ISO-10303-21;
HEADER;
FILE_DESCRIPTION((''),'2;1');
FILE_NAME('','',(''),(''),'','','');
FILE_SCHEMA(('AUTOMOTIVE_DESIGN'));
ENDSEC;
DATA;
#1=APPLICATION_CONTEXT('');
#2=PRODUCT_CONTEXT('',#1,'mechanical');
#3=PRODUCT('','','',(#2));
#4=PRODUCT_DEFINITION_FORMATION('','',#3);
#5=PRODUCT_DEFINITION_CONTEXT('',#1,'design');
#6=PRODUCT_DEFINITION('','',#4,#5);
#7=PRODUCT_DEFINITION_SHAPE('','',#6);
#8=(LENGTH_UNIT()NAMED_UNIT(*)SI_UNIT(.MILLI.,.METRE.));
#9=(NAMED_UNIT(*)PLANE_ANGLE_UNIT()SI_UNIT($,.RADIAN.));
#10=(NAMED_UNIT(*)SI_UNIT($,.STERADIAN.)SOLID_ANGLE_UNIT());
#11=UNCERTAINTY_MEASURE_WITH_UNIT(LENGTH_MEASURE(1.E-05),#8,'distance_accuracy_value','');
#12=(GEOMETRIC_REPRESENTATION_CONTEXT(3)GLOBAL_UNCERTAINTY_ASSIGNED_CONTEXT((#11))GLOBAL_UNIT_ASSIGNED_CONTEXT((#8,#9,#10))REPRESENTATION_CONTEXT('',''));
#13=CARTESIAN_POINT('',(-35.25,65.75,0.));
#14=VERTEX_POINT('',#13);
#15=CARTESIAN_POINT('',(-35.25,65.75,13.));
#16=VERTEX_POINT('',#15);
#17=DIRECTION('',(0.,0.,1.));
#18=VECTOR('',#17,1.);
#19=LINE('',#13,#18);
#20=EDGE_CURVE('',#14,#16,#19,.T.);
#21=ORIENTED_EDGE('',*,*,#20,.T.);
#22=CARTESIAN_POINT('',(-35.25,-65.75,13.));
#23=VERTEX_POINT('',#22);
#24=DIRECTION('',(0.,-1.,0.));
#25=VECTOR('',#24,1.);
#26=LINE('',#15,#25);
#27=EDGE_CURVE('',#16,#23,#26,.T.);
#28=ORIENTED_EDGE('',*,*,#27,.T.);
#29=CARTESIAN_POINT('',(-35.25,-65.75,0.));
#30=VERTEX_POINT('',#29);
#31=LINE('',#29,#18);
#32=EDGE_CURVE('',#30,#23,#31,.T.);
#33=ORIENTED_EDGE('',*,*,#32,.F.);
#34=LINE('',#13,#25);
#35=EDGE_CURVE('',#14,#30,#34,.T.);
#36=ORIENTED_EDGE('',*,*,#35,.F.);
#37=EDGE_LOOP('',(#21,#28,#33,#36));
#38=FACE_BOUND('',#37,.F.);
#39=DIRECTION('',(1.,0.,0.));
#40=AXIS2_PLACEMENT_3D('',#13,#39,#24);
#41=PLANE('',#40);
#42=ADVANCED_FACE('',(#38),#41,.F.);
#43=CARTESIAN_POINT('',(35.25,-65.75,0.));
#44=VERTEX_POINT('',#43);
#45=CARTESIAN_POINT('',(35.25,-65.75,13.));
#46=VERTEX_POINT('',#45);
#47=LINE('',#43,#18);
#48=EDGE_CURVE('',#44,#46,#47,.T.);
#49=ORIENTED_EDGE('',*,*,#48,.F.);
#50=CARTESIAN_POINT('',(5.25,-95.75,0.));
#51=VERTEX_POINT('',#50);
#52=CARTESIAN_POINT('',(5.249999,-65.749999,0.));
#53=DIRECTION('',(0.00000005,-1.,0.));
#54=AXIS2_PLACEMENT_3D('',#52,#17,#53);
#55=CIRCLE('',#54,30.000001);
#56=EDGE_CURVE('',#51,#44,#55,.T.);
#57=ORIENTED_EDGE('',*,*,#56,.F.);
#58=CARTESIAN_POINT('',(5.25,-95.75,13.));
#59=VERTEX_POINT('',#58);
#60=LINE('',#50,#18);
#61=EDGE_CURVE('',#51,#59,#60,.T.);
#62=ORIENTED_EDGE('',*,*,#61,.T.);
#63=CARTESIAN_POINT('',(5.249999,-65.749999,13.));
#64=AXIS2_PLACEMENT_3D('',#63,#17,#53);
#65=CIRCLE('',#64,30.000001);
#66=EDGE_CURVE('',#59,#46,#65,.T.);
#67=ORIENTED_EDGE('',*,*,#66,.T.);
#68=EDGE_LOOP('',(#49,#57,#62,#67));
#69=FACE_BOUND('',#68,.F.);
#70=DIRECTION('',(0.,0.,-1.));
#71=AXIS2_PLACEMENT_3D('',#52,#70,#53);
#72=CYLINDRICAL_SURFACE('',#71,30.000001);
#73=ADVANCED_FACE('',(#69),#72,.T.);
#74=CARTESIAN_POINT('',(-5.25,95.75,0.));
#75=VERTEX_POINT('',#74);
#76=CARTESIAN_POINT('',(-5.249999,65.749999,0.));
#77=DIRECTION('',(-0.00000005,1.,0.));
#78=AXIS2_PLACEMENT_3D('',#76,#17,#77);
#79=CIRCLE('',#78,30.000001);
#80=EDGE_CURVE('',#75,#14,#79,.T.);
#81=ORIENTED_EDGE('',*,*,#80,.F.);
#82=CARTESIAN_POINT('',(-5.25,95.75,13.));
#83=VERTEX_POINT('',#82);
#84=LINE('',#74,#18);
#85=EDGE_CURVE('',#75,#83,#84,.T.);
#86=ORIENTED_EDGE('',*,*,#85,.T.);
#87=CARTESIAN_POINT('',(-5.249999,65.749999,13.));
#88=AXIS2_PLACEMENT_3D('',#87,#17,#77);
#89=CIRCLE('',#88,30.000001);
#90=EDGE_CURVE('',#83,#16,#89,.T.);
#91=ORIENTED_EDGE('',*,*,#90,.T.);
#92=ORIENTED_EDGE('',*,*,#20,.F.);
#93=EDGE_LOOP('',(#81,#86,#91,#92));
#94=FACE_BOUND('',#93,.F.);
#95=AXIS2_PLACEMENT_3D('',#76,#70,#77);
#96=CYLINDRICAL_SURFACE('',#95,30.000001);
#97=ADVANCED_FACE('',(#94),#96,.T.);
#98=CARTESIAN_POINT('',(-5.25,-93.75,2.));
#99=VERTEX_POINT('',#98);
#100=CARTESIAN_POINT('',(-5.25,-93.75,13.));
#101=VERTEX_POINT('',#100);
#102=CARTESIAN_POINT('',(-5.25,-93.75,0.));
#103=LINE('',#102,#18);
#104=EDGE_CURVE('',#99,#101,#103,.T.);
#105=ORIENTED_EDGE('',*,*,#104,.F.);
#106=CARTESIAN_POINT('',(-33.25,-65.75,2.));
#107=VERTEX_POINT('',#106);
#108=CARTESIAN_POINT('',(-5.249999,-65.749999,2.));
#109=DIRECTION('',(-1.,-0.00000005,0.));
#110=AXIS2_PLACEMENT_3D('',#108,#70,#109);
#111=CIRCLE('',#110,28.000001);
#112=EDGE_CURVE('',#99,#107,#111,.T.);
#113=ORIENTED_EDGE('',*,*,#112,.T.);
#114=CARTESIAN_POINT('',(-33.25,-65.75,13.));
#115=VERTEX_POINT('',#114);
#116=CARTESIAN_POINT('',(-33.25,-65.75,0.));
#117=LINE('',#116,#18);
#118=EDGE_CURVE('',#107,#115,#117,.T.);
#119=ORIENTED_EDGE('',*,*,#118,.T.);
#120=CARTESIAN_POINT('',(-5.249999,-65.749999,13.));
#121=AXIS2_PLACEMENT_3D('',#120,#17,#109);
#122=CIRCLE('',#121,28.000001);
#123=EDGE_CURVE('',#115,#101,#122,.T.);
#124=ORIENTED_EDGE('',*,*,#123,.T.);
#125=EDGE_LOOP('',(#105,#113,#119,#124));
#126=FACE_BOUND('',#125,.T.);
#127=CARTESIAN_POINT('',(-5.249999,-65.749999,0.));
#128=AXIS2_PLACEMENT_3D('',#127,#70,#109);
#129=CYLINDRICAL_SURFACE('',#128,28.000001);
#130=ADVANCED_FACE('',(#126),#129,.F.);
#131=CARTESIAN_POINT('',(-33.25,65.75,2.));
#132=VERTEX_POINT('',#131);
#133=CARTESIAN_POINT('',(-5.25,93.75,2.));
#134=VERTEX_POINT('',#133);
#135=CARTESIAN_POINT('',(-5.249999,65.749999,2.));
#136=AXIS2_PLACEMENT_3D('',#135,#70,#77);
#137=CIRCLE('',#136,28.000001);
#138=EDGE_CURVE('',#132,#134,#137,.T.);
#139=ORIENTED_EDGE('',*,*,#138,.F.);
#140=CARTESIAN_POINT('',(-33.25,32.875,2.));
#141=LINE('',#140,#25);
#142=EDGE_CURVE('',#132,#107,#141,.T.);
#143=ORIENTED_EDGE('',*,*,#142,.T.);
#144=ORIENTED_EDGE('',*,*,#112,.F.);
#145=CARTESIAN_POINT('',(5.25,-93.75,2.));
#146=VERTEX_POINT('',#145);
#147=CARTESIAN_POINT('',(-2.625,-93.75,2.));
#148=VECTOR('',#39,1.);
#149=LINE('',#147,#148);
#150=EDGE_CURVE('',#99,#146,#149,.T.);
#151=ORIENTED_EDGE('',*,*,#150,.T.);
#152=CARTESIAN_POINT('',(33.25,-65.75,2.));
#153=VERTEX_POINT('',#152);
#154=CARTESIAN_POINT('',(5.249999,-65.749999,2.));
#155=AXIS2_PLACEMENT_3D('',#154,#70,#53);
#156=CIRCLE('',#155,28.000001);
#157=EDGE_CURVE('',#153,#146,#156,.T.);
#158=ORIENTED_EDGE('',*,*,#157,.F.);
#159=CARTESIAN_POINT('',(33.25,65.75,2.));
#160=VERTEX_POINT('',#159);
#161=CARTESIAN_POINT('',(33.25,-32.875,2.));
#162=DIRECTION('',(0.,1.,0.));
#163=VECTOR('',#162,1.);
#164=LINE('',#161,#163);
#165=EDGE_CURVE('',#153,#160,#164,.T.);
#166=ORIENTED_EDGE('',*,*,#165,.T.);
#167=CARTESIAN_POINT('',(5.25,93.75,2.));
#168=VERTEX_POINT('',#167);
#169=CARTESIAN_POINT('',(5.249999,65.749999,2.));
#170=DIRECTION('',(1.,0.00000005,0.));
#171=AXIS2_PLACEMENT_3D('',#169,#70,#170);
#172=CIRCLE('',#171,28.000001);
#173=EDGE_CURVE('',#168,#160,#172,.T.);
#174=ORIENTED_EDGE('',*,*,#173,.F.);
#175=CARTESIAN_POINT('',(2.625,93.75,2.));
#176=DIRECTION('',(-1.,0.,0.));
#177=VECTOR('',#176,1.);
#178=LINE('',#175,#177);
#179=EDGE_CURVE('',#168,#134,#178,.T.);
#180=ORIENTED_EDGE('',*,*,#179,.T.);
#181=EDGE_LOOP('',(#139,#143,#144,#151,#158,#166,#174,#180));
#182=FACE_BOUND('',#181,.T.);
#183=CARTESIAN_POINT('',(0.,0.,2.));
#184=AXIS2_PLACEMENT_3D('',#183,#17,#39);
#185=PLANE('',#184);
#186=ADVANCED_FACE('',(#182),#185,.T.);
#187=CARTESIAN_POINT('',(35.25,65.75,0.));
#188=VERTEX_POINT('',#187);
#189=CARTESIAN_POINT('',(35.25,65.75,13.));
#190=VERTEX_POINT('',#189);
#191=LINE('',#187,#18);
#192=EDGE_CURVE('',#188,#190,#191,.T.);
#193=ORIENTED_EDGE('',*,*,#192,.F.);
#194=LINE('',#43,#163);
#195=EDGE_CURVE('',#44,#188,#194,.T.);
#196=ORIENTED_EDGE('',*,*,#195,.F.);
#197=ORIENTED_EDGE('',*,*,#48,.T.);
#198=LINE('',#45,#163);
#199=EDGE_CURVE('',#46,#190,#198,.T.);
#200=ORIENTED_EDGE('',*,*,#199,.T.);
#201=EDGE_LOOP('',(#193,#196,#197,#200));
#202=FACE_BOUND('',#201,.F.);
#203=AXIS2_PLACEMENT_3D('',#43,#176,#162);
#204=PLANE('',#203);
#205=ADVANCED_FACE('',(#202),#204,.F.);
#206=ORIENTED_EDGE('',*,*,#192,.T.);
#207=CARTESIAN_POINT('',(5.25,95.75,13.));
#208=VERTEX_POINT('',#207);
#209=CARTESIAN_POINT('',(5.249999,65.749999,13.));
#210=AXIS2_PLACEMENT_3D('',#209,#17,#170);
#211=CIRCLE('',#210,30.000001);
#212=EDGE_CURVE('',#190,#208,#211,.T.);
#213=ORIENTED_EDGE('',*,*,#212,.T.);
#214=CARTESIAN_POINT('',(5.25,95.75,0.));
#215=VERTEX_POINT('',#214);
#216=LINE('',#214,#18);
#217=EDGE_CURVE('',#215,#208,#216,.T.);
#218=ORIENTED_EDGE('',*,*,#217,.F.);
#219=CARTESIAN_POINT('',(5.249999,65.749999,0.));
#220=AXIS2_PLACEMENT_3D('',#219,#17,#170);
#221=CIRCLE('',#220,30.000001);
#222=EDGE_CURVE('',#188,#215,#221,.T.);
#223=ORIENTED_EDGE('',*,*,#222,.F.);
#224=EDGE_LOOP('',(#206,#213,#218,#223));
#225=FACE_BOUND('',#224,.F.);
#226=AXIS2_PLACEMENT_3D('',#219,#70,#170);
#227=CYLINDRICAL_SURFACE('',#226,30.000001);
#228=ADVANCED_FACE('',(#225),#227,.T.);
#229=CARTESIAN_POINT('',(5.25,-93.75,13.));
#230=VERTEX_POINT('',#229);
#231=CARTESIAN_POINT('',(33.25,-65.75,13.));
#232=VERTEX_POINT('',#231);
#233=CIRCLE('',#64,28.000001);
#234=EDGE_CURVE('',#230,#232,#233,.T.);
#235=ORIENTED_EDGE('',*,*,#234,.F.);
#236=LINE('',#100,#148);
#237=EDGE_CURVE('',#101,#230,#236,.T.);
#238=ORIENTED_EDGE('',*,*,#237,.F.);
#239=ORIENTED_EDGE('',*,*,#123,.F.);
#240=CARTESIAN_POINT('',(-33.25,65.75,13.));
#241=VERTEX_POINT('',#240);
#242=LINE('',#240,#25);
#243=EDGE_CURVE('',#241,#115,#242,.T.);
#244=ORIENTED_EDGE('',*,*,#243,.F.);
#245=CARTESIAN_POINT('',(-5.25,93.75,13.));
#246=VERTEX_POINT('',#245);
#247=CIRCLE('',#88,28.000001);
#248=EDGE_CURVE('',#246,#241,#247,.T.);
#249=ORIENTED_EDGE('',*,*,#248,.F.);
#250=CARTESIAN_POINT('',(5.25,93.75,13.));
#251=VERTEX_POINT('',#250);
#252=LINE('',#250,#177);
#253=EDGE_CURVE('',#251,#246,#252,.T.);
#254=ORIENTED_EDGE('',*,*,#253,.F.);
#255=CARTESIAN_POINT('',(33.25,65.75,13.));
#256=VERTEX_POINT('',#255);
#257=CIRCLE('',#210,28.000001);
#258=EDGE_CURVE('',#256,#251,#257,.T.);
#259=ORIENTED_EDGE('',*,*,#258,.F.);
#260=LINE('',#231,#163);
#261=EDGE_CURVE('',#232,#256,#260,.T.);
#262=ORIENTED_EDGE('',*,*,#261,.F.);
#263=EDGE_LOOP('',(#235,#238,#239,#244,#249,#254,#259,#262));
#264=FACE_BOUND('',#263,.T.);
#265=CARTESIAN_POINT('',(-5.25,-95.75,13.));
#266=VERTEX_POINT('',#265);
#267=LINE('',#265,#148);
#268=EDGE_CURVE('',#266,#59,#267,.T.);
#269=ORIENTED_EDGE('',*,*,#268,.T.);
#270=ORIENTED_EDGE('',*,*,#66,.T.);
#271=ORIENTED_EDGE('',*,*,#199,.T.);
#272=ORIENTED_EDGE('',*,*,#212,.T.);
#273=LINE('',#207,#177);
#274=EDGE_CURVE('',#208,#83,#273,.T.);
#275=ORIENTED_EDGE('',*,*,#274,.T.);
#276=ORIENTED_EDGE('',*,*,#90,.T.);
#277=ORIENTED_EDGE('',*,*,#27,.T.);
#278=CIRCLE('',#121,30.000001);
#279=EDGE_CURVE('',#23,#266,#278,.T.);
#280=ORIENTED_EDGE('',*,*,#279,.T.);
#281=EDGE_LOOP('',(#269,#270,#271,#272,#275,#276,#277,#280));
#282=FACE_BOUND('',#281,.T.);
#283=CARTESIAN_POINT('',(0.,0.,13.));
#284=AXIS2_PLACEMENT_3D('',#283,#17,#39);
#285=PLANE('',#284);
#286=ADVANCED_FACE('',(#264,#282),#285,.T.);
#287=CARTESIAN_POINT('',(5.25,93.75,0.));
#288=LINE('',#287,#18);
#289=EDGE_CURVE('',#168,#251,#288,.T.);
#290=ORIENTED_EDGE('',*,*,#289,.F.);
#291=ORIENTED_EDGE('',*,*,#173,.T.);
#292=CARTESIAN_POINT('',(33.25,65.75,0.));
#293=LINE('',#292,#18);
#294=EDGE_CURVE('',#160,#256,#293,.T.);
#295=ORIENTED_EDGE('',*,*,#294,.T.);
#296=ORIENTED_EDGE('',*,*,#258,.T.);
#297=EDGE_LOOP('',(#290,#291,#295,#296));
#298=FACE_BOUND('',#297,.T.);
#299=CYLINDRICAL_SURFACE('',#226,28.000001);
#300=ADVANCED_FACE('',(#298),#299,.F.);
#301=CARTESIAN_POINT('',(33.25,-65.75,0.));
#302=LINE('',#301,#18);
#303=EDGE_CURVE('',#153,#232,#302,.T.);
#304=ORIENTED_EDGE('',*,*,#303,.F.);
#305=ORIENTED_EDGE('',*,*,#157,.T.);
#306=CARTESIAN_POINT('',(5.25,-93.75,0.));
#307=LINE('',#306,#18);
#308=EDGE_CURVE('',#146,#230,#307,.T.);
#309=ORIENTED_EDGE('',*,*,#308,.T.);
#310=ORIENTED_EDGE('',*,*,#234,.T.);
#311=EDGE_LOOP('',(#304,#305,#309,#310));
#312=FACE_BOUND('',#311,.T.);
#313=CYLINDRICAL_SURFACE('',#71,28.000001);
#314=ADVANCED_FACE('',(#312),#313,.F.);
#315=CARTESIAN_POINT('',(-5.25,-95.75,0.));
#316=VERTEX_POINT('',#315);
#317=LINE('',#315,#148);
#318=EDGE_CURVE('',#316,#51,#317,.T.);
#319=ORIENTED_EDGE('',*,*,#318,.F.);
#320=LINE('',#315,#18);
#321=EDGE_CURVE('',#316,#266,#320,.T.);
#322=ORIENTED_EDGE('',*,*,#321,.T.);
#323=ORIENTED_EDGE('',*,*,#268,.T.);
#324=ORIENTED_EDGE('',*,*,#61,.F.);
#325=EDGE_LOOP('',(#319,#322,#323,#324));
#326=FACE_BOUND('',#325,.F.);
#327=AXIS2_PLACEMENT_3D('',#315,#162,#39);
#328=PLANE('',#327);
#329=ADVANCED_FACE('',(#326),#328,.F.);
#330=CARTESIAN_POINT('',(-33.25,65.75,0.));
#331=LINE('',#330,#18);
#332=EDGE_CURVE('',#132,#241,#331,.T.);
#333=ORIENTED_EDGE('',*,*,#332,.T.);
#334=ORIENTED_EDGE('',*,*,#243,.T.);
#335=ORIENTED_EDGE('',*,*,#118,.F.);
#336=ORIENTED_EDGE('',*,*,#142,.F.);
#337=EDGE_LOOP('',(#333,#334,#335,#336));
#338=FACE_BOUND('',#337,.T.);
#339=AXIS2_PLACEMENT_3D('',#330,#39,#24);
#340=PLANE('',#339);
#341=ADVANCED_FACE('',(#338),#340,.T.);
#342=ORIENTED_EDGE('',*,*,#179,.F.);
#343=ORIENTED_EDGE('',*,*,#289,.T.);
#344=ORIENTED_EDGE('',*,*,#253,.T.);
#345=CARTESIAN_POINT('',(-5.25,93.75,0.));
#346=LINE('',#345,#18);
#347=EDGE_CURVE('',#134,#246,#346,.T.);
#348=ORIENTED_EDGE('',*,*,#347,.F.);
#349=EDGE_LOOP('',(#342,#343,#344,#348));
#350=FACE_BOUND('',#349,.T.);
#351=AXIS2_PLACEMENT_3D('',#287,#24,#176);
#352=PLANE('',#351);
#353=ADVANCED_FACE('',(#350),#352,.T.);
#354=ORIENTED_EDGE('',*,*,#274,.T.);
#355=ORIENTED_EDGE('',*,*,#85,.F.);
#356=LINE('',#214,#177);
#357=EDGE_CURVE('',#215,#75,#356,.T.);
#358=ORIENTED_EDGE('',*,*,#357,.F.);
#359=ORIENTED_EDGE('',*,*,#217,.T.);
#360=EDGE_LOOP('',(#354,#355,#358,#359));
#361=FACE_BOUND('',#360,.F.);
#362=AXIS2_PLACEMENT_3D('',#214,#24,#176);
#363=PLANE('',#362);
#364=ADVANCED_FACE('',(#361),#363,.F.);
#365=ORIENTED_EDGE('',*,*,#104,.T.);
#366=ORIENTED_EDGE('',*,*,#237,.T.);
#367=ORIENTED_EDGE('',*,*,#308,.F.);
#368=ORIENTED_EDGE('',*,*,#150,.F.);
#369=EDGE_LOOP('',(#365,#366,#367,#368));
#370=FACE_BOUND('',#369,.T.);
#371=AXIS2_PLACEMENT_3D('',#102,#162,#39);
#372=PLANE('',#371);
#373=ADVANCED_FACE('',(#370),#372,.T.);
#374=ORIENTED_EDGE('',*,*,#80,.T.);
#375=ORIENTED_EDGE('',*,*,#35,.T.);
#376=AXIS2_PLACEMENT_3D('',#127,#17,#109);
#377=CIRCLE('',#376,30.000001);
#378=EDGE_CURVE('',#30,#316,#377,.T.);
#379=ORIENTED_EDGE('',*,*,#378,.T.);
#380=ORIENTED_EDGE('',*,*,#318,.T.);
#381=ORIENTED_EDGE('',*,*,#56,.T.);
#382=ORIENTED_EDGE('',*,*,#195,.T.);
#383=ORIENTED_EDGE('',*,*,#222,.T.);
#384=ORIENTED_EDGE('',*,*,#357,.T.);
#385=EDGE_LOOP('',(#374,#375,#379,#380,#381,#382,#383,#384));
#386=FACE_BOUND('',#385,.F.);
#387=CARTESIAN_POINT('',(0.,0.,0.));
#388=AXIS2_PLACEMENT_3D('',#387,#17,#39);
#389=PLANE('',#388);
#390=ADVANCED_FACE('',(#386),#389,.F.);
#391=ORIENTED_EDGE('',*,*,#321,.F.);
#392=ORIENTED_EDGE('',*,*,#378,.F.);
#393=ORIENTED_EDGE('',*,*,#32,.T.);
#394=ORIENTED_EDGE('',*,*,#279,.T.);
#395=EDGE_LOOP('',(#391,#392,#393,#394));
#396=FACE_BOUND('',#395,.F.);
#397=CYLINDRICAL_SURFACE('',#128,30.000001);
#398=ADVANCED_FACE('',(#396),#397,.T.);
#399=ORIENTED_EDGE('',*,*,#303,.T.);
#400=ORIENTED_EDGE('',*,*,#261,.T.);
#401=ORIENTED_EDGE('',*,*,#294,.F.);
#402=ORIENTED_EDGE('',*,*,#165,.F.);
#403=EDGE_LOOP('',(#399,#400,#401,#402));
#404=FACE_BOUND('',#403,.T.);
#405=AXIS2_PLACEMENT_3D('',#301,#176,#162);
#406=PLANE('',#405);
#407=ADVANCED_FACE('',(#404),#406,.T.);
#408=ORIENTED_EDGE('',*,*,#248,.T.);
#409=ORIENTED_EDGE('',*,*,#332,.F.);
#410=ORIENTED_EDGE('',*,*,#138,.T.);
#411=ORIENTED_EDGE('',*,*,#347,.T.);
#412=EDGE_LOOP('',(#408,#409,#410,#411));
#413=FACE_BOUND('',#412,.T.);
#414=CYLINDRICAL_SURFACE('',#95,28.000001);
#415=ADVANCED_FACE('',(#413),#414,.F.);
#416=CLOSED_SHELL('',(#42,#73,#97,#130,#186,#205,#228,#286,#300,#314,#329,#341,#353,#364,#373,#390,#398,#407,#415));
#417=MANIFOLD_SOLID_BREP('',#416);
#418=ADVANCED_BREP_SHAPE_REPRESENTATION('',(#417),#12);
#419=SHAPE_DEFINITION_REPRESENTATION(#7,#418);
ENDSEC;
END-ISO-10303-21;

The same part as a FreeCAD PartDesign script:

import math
import FreeCAD as App
import Part
import Sketcher

V = App.Vector
Q = App.Units.Quantity


def faces_at(feature, points):
    """Names of the faces that lie closest to the given points."""
    faces = feature.Shape.Faces
    near = lambda p: min(range(len(faces)), key=lambda i: faces[i].distToShape(Part.Vertex(*p))[0])
    return sorted({f"Face{near(p) + 1}" for p in points})

doc = App.newDocument("Part")
body = doc.addObject("PartDesign::Body", "Body")

# Sketch on XY plane
sketch1 = body.newObject("Sketcher::SketchObject", "Sketch")
sketch1.AttachmentSupport = (doc.getObject("XY_Plane"), [""])
sketch1.MapMode = "FlatFace"
sketch1.addGeometry([
    Part.LineSegment(V(5.25, 95.75, 0), V(-5.25, 95.75, 0)),  # 0
    Part.ArcOfCircle(Part.Circle(V(-5.249999, 65.749999, 0), V(0, 0, 1), 30.000001), math.radians(90.000003), math.radians(179.999997)),  # 1
    Part.LineSegment(V(-35.25, 65.75, 0), V(-35.25, -65.75, 0)),  # 2
    Part.ArcOfCircle(Part.Circle(V(-5.249999, -65.749999, 0), V(0, 0, 1), 30.000001), math.radians(-179.999997), math.radians(-90.000003)),  # 3
    Part.LineSegment(V(-5.25, -95.75, 0), V(5.25, -95.75, 0)),  # 4
    Part.ArcOfCircle(Part.Circle(V(5.249999, -65.749999, 0), V(0, 0, 1), 30.000001), math.radians(-89.999997), math.radians(-0.000003)),  # 5
    Part.LineSegment(V(35.25, -65.75, 0), V(35.25, 65.75, 0)),  # 6
    Part.ArcOfCircle(Part.Circle(V(5.249999, 65.749999, 0), V(0, 0, 1), 30.000001), math.radians(0.000003), math.radians(89.999997)),  # 7
], False)
sketch1.addConstraint([
    Sketcher.Constraint("Tangent", 0, 2, 1, 1),
    Sketcher.Constraint("Tangent", 1, 2, 2, 1),
    Sketcher.Constraint("Tangent", 2, 2, 3, 1),
    Sketcher.Constraint("Tangent", 3, 2, 4, 1),
    Sketcher.Constraint("Tangent", 4, 2, 5, 1),
    Sketcher.Constraint("Tangent", 5, 2, 6, 1),
    Sketcher.Constraint("Tangent", 6, 2, 7, 1),
    Sketcher.Constraint("Tangent", 7, 2, 0, 1),
    Sketcher.Constraint("Horizontal", 0),
    Sketcher.Constraint("Vertical", 2),
    Sketcher.Constraint("Horizontal", 4),
    Sketcher.Constraint("Vertical", 6),
    Sketcher.Constraint("Equal", 1, 3),
    Sketcher.Constraint("Equal", 3, 5),
    Sketcher.Constraint("Equal", 5, 7),
    Sketcher.Constraint("Symmetric", 1, 3, 5, 3, -1, 1),
    Sketcher.Constraint("Radius", 1, Q("30.000001 mm")),
    Sketcher.Constraint("DistanceX", 0, 2, 0, 1, Q("10.5 mm")),
    Sketcher.Constraint("DistanceY", 2, 2, 2, 1, Q("131.5 mm")),
])
pad1 = body.newObject("PartDesign::Pad", "Pad")
pad1.Profile = sketch1
pad1.Length = 13
doc.recompute()

thickness = body.newObject("PartDesign::Thickness", "Thickness")
thickness.Base = (pad1, faces_at(pad1, [(0, 0, 13)]))
thickness.Value = 2
thickness.Reversed = True
thickness.Join = "Arc"

doc.recompute()
